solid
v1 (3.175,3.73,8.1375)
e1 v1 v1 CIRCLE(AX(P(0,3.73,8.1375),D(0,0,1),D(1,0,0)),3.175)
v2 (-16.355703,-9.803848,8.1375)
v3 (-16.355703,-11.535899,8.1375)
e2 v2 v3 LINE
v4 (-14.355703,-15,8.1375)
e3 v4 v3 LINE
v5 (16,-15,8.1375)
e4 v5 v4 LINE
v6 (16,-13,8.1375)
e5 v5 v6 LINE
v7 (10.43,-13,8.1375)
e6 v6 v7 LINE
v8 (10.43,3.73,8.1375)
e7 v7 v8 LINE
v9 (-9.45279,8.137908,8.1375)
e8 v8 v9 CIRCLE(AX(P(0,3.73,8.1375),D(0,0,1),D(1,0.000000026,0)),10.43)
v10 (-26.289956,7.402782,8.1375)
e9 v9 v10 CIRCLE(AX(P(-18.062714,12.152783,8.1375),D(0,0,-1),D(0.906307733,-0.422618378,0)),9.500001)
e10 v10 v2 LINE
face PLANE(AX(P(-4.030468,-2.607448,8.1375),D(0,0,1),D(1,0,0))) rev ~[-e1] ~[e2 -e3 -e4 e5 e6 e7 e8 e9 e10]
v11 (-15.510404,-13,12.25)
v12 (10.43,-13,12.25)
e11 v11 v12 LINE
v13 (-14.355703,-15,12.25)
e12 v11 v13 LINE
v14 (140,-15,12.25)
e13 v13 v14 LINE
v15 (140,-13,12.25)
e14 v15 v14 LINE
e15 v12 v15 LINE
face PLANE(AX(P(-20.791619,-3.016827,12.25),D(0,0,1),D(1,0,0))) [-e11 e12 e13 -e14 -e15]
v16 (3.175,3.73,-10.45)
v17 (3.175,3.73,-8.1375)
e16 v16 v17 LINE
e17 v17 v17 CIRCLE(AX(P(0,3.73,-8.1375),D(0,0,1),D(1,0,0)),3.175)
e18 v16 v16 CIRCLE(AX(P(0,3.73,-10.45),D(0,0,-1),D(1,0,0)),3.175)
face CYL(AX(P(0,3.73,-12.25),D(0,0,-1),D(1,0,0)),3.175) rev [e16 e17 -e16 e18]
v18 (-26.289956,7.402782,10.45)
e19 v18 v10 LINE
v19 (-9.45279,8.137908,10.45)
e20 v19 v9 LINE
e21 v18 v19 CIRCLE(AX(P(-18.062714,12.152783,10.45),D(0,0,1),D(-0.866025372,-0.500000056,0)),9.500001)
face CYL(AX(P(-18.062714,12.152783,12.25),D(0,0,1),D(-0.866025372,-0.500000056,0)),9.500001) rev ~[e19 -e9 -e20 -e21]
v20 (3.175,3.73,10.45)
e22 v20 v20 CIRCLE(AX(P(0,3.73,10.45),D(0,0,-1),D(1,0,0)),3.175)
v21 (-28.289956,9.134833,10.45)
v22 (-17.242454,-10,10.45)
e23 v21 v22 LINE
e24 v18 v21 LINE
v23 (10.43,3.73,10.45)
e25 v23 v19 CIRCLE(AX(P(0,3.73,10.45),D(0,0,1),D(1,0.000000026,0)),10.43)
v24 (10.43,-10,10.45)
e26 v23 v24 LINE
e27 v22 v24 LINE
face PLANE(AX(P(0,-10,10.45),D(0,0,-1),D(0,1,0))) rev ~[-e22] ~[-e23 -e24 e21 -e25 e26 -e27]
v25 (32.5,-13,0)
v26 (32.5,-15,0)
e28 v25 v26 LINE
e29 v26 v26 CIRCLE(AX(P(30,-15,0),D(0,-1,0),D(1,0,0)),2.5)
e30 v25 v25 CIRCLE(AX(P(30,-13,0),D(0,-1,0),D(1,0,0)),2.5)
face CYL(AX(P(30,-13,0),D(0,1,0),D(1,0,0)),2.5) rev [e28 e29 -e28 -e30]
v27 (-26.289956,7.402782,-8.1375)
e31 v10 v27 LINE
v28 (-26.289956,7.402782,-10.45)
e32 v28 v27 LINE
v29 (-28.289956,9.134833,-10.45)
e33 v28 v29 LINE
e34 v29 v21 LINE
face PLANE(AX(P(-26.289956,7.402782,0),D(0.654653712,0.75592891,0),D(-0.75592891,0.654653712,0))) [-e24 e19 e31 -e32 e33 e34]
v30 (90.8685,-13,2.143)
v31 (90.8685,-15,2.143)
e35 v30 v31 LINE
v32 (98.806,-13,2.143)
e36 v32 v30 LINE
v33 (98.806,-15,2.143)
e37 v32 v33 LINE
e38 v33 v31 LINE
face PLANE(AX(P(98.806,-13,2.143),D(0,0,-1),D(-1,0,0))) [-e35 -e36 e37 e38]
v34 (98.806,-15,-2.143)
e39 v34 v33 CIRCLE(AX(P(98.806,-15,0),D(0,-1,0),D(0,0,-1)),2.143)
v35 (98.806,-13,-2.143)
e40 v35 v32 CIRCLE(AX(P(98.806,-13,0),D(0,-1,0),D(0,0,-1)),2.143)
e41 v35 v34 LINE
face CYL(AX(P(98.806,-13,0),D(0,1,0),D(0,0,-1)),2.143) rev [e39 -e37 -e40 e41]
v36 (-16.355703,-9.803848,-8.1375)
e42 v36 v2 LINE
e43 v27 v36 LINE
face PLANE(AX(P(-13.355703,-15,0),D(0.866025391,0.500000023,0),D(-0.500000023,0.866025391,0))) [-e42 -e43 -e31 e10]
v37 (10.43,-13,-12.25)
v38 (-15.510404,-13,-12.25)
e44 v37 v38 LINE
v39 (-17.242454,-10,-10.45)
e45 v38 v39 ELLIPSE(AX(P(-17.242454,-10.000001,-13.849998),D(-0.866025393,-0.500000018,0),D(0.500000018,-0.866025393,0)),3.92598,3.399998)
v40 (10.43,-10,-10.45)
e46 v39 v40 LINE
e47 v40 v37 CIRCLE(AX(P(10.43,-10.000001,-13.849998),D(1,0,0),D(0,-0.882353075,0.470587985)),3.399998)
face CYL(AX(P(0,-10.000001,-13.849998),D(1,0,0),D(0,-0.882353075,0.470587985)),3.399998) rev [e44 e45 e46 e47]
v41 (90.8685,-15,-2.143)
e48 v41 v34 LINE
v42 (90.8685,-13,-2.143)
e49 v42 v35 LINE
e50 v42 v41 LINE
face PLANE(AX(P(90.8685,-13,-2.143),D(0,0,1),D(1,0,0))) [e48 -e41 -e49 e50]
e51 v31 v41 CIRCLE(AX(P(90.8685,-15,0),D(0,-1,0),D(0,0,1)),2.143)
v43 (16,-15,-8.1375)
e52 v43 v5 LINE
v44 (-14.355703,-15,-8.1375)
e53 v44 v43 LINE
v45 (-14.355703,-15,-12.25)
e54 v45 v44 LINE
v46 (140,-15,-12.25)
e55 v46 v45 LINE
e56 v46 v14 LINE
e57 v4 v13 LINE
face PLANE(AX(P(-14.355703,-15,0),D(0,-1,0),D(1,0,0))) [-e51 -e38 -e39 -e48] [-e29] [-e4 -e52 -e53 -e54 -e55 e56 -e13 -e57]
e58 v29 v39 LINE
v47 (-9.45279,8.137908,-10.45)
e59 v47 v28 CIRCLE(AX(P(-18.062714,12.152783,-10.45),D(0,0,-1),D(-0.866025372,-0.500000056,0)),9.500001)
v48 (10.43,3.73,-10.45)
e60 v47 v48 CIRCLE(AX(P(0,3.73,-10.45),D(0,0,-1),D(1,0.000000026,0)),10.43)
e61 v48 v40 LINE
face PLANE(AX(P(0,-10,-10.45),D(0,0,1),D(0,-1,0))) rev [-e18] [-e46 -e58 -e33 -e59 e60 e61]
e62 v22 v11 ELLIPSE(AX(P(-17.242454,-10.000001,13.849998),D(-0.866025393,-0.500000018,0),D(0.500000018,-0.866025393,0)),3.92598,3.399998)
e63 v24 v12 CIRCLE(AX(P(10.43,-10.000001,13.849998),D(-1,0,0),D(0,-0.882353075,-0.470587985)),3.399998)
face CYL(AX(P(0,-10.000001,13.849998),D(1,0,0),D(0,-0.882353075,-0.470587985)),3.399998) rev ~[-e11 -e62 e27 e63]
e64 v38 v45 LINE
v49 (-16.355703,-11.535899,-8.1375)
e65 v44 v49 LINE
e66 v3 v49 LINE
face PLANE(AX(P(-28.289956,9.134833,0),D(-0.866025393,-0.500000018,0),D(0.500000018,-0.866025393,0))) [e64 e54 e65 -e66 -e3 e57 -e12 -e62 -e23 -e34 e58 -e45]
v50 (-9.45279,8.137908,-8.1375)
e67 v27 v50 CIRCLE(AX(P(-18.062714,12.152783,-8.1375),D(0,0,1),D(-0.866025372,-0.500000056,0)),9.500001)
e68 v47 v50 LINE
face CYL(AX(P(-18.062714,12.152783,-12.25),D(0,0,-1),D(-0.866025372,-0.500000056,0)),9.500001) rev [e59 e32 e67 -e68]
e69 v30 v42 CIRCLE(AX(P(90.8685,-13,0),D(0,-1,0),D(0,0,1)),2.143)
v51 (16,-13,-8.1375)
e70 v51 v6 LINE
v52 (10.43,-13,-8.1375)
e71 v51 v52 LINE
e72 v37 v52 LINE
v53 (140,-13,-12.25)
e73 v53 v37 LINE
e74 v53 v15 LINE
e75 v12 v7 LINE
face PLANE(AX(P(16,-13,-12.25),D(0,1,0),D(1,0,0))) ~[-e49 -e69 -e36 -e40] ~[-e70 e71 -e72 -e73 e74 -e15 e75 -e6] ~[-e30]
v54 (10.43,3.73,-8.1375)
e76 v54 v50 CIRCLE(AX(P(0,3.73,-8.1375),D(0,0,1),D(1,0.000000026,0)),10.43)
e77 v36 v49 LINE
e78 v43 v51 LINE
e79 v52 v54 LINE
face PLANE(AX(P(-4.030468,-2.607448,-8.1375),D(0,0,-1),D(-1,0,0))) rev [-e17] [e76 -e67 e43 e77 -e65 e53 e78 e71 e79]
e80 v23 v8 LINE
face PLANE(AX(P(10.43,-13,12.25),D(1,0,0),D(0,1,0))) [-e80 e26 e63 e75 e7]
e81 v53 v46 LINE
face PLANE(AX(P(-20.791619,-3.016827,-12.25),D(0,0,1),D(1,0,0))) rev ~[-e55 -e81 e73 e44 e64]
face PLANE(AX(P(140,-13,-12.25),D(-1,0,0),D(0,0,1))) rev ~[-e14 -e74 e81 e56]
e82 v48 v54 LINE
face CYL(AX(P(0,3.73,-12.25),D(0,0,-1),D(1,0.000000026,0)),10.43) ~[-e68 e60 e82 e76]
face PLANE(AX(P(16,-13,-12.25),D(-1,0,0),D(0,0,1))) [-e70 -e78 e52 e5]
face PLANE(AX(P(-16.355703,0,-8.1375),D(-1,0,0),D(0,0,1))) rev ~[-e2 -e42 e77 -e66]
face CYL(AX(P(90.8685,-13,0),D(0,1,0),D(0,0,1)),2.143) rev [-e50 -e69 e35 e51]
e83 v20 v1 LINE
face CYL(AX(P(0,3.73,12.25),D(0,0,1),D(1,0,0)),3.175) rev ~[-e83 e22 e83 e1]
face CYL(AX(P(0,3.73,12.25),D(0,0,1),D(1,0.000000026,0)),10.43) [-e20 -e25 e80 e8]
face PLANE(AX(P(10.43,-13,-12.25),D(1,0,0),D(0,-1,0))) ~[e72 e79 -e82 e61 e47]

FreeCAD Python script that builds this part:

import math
import FreeCAD as App
import Part
import Sketcher
from FreeCAD import Vector
Q = App.Units.Quantity


def add_polygon(sketch, points):
    """Adds a closed chain of lines whose ends are joined by coincident constraints."""
    first, n = sketch.GeometryCount, len(points)
    for a, b in zip(points, points[1:] + points[:1]):
        sketch.addGeometry(Part.LineSegment(App.Vector(*a, 0), App.Vector(*b, 0)), False)
    for i in range(n):
        sketch.addConstraint(Sketcher.Constraint("Coincident", first + i, 2, first + (i + 1) % n, 1))

doc = App.newDocument("Part")
body = doc.addObject("PartDesign::Body", "Body")

sketch1 = body.newObject("Sketcher::SketchObject", "Sketch")
sketch1.AttachmentSupport = (doc.getObject("XZ_Plane"), [""])
sketch1.MapMode = "FlatFace"
sketch1.AttachmentOffset = App.Placement(Vector(0, 0, 13), App.Rotation())
add_polygon(sketch1, [(16, 12.2), (16, -12.2), (140, -12.2), (140, 12.2)])
sketch1.addGeometry(Part.Circle(Vector(30, 0, 0), Vector(0, 0, 1), 2.5), False)
sketch1.addGeometry(Part.ArcOfCircle(Part.Circle(Vector(90.9, 0, 0), Vector(0, 0, 1), 2.1), math.radians(90), math.radians(270)), False)
sketch1.addGeometry(Part.LineSegment(Vector(90.9, 2.1, 0), Vector(98.8, 2.1, 0)), False)
sketch1.addGeometry(Part.ArcOfCircle(Part.Circle(Vector(98.8, 0, 0), Vector(0, 0, 1), 2.1), math.radians(-90), math.radians(90)), False)
sketch1.addGeometry(Part.LineSegment(Vector(98.8, -2.1, 0), Vector(90.9, -2.1, 0)), False)
sketch1.addConstraint(Sketcher.Constraint("Tangent", 5, 1, 6, 1))
sketch1.addConstraint(Sketcher.Constraint("Tangent", 6, 2, 7, 2))
sketch1.addConstraint(Sketcher.Constraint("Tangent", 7, 1, 8, 1))
sketch1.addConstraint(Sketcher.Constraint("Tangent", 8, 2, 5, 2))
sketch1.addConstraint(Sketcher.Constraint("Vertical", 0))
sketch1.addConstraint(Sketcher.Constraint("Horizontal", 1))
sketch1.addConstraint(Sketcher.Constraint("Vertical", 2))
sketch1.addConstraint(Sketcher.Constraint("Horizontal", 3))
sketch1.addConstraint(Sketcher.Constraint("Horizontal", 6))
sketch1.addConstraint(Sketcher.Constraint("Horizontal", 8))
sketch1.addConstraint(Sketcher.Constraint("PointOnObject", 4, 3, -1))
sketch1.addConstraint(Sketcher.Constraint("PointOnObject", 5, 3, -1))
sketch1.addConstraint(Sketcher.Constraint("Diameter", 4, 5.0))
sketch1.addConstraint(Sketcher.Constraint("DistanceX", 1, 1, 1, 2, 124.0))
sketch1.addConstraint(Sketcher.Constraint("DistanceY", 0, 2, 0, 1, 24.5))
sketch1.addConstraint(Sketcher.Constraint("DistanceX", -1, 1, 4, 3, 30.0))
sketch1.addConstraint(Sketcher.Constraint("DistanceX", -1, 1, 0, 2, 16.0))
sketch1.addConstraint(Sketcher.Constraint("Radius", 5, 2.143))
sketch1.addConstraint(Sketcher.Constraint("DistanceY", 0, 2, -1, 1, 12.25))
sketch1.addConstraint(Sketcher.Constraint("DistanceX", 6, 1, 6, 2, 7.9375))
sketch1.addConstraint(Sketcher.Constraint("DistanceX", -1, 1, 7, 3, 98.806))
pad1 = body.newObject("PartDesign::Pad", "Pad")
pad1.Profile = sketch1
pad1.Length = 2

sketch2 = body.newObject("Sketcher::SketchObject", "Sketch001")
sketch2.AttachmentSupport = (doc.getObject("XY_Plane"), [""])
sketch2.MapMode = "FlatFace"
sketch2.AttachmentOffset = App.Placement(Vector(0, 0, 12.25), App.Rotation())
sketch2.addGeometry(Part.LineSegment(Vector(16, -13, 0), Vector(10.4, -13, 0)), False)
sketch2.addGeometry(Part.LineSegment(Vector(10.4, -13, 0), Vector(10.4, 3.7, 0)), False)
sketch2.addGeometry(Part.ArcOfCircle(Part.Circle(Vector(0, 3.7, 0), Vector(0, 0, 1), 10.4), math.radians(0), math.radians(155)), False)
sketch2.addGeometry(Part.ArcOfCircle(Part.Circle(Vector(-18.1, 12.2, 0), Vector(0, 0, 1), 9.5), math.radians(-150), math.radians(-25)), False)
sketch2.addGeometry(Part.LineSegment(Vector(-26.3, 7.4, 0), Vector(-13.4, -15, 0)), False)
sketch2.addGeometry(Part.LineSegment(Vector(-13.4, -15, 0), Vector(16, -15, 0)), False)
sketch2.addGeometry(Part.LineSegment(Vector(16, -15, 0), Vector(16, -13, 0)), False)
sketch2.addGeometry(Part.Circle(Vector(0, 3.7, 0), Vector(0, 0, 1), 3.2), False)
sketch2.addConstraint(Sketcher.Constraint("Coincident", 0, 2, 1, 1))
sketch2.addConstraint(Sketcher.Constraint("Tangent", 1, 2, 2, 1))
sketch2.addConstraint(Sketcher.Constraint("Tangent", 2, 2, 3, 2))
sketch2.addConstraint(Sketcher.Constraint("Tangent", 3, 1, 4, 1))
sketch2.addConstraint(Sketcher.Constraint("Coincident", 4, 2, 5, 1))
sketch2.addConstraint(Sketcher.Constraint("Coincident", 5, 2, 6, 1))
sketch2.addConstraint(Sketcher.Constraint("Coincident", 6, 2, 0, 1))
sketch2.addConstraint(Sketcher.Constraint("Horizontal", 0))
sketch2.addConstraint(Sketcher.Constraint("Vertical", 1))
sketch2.addConstraint(Sketcher.Constraint("Horizontal", 5))
sketch2.addConstraint(Sketcher.Constraint("Vertical", 6))
sketch2.addConstraint(Sketcher.Constraint("Coincident", 7, 3, 2, 3))
sketch2.addConstraint(Sketcher.Constraint("PointOnObject", 2, 3, -2))
sketch2.addConstraint(Sketcher.Constraint("Radius", 3, 9.500001))
sketch2.addConstraint(Sketcher.Constraint("Diameter", 7, 6.35))
sketch2.addConstraint(Sketcher.Constraint("DistanceY", 6, 1, 6, 2, 2.0))
sketch2.addConstraint(Sketcher.Constraint("Angle", 4, Q("-59.999999 deg")))
sketch2.addConstraint(Sketcher.Constraint("Radius", 2, 10.43))
sketch2.addConstraint(Sketcher.Constraint("DistanceY", 0, 2, -1, 1, 13.0))
sketch2.addConstraint(Sketcher.Constraint("DistanceX", -1, 1, 5, 2, 16.0))
sketch2.addConstraint(Sketcher.Constraint("DistanceY", 1, 1, 1, 2, 16.73))
sketch2.addConstraint(Sketcher.Constraint("DistanceX", 5, 1, 5, 2, 29.355703))
pad2 = body.newObject("PartDesign::Pad", "Pad001")
pad2.Profile = sketch2
pad2.Length = 4.1125
pad2.Reversed = True
doc.recompute()

mirrored = body.newObject("PartDesign::Mirrored", "Mirrored")
mirrored.Originals = [pad2]
mirrored.MirrorPlane = (doc.getObject("XY_Plane"), [""])
body.Tip = mirrored

sketch3 = body.newObject("Sketcher::SketchObject", "Sketch002")
sketch3.AttachmentSupport = (doc.getObject("XY_Plane"), [""])
sketch3.MapMode = "FlatFace"
add_polygon(sketch3, [(-26.3, 7.4), (-28.3, 9.1), (-14.4, -15), (-13.4, -15)])
sketch3.addConstraint(Sketcher.Constraint("Horizontal", 2))
sketch3.addConstraint(Sketcher.Constraint("Parallel", 1, 3))
sketch3.addConstraint(Sketcher.Constraint("DistanceX", 2, 1, 2, 2, 1.0))
sketch3.addConstraint(Sketcher.Constraint("Angle", 1, Q("-59.999999 deg")))
sketch3.addConstraint(Sketcher.Constraint("DistanceY", 1, 2, -1, 1, 15.0))
sketch3.addConstraint(Sketcher.Constraint("DistanceX", 0, 2, 3, 2, 2.0))
sketch3.addConstraint(Sketcher.Constraint("Distance", 1, 27.868505))
sketch3.addConstraint(Sketcher.Constraint("DistanceX", 0, 2, -1, 1, 28.289956))
pad3 = body.newObject("PartDesign::Pad", "Pad002")
pad3.Profile = sketch3
pad3.Length = 24.5
pad3.Midplane = True

sketch4 = body.newObject("Sketcher::SketchObject", "Sketch003")
sketch4.AttachmentSupport = (doc.getObject("YZ_Plane"), [""])
sketch4.MapMode = "FlatFace"
sketch4.addGeometry(Part.ArcOfCircle(Part.Circle(Vector(-10, 13.8, 0), Vector(0, 0, 1), 3.4), math.radians(-152), math.radians(-90)), False)
sketch4.addGeometry(Part.LineSegment(Vector(-10, 10.4, 0), Vector(14.2, 10.4, 0)), False)
sketch4.addGeometry(Part.LineSegment(Vector(14.2, 10.4, 0), Vector(14.2, 12.2, 0)), False)
sketch4.addGeometry(Part.LineSegment(Vector(14.2, 12.2, 0), Vector(-13, 12.2, 0)), False)
sketch4.addConstraint(Sketcher.Constraint("Tangent", 0, 2, 1, 1))
sketch4.addConstraint(Sketcher.Constraint("Coincident", 1, 2, 2, 1))
sketch4.addConstraint(Sketcher.Constraint("Coincident", 2, 2, 3, 1))
sketch4.addConstraint(Sketcher.Constraint("Coincident", 3, 2, 0, 1))
sketch4.addConstraint(Sketcher.Constraint("Horizontal", 1))
sketch4.addConstraint(Sketcher.Constraint("Vertical", 2))
sketch4.addConstraint(Sketcher.Constraint("Horizontal", 3))
sketch4.addConstraint(Sketcher.Constraint("Radius", 0, 3.399998))
sketch4.addConstraint(Sketcher.Constraint("DistanceY", 2, 1, 2, 2, 1.8))
sketch4.addConstraint(Sketcher.Constraint("DistanceX", 0, 3, -1, 1, 10.000001))
sketch4.addConstraint(Sketcher.Constraint("DistanceX", 1, 1, 1, 2, 24.16))
sketch4.addConstraint(Sketcher.Constraint("DistanceY", -1, 1, 0, 3, 13.849998))
pocket1 = body.newObject("PartDesign::Pocket", "Pocket")
pocket1.Profile = sketch4
pocket1.Type = "ThroughAll"
pocket1.Midplane = True
doc.recompute()

mirrored2 = body.newObject("PartDesign::Mirrored", "Mirrored001")
mirrored2.Originals = [pocket1]
mirrored2.MirrorPlane = (doc.getObject("XY_Plane"), [""])
body.Tip = mirrored2

sketch5 = body.newObject("Sketcher::SketchObject", "Sketch004")
sketch5.AttachmentSupport = (doc.getObject("XZ_Plane"), [""])
sketch5.MapMode = "FlatFace"
add_polygon(sketch5, [(-16.4, 8.1), (-16.4, -8.1), (-13.4, -8.1), (-13.4, 8.1)])
sketch5.addConstraint(Sketcher.Constraint("Vertical", 0))
sketch5.addConstraint(Sketcher.Constraint("Horizontal", 1))
sketch5.addConstraint(Sketcher.Constraint("Vertical", 2))
sketch5.addConstraint(Sketcher.Constraint("Horizontal", 3))
sketch5.addConstraint(Sketcher.Constraint("DistanceX", 1, 1, 1, 2, 3.0))
sketch5.addConstraint(Sketcher.Constraint("DistanceY", 0, 2, 0, 1, 16.275))
sketch5.addConstraint(Sketcher.Constraint("DistanceY", 0, 2, -1, 1, 8.1375))
sketch5.addConstraint(Sketcher.Constraint("DistanceX", 0, 2, -1, 1, 16.355703))
pocket2 = body.newObject("PartDesign::Pocket", "Pocket001")
pocket2.Profile = sketch5
pocket2.Type = "ThroughAll"
pocket2.Midplane = True

doc.recompute()
